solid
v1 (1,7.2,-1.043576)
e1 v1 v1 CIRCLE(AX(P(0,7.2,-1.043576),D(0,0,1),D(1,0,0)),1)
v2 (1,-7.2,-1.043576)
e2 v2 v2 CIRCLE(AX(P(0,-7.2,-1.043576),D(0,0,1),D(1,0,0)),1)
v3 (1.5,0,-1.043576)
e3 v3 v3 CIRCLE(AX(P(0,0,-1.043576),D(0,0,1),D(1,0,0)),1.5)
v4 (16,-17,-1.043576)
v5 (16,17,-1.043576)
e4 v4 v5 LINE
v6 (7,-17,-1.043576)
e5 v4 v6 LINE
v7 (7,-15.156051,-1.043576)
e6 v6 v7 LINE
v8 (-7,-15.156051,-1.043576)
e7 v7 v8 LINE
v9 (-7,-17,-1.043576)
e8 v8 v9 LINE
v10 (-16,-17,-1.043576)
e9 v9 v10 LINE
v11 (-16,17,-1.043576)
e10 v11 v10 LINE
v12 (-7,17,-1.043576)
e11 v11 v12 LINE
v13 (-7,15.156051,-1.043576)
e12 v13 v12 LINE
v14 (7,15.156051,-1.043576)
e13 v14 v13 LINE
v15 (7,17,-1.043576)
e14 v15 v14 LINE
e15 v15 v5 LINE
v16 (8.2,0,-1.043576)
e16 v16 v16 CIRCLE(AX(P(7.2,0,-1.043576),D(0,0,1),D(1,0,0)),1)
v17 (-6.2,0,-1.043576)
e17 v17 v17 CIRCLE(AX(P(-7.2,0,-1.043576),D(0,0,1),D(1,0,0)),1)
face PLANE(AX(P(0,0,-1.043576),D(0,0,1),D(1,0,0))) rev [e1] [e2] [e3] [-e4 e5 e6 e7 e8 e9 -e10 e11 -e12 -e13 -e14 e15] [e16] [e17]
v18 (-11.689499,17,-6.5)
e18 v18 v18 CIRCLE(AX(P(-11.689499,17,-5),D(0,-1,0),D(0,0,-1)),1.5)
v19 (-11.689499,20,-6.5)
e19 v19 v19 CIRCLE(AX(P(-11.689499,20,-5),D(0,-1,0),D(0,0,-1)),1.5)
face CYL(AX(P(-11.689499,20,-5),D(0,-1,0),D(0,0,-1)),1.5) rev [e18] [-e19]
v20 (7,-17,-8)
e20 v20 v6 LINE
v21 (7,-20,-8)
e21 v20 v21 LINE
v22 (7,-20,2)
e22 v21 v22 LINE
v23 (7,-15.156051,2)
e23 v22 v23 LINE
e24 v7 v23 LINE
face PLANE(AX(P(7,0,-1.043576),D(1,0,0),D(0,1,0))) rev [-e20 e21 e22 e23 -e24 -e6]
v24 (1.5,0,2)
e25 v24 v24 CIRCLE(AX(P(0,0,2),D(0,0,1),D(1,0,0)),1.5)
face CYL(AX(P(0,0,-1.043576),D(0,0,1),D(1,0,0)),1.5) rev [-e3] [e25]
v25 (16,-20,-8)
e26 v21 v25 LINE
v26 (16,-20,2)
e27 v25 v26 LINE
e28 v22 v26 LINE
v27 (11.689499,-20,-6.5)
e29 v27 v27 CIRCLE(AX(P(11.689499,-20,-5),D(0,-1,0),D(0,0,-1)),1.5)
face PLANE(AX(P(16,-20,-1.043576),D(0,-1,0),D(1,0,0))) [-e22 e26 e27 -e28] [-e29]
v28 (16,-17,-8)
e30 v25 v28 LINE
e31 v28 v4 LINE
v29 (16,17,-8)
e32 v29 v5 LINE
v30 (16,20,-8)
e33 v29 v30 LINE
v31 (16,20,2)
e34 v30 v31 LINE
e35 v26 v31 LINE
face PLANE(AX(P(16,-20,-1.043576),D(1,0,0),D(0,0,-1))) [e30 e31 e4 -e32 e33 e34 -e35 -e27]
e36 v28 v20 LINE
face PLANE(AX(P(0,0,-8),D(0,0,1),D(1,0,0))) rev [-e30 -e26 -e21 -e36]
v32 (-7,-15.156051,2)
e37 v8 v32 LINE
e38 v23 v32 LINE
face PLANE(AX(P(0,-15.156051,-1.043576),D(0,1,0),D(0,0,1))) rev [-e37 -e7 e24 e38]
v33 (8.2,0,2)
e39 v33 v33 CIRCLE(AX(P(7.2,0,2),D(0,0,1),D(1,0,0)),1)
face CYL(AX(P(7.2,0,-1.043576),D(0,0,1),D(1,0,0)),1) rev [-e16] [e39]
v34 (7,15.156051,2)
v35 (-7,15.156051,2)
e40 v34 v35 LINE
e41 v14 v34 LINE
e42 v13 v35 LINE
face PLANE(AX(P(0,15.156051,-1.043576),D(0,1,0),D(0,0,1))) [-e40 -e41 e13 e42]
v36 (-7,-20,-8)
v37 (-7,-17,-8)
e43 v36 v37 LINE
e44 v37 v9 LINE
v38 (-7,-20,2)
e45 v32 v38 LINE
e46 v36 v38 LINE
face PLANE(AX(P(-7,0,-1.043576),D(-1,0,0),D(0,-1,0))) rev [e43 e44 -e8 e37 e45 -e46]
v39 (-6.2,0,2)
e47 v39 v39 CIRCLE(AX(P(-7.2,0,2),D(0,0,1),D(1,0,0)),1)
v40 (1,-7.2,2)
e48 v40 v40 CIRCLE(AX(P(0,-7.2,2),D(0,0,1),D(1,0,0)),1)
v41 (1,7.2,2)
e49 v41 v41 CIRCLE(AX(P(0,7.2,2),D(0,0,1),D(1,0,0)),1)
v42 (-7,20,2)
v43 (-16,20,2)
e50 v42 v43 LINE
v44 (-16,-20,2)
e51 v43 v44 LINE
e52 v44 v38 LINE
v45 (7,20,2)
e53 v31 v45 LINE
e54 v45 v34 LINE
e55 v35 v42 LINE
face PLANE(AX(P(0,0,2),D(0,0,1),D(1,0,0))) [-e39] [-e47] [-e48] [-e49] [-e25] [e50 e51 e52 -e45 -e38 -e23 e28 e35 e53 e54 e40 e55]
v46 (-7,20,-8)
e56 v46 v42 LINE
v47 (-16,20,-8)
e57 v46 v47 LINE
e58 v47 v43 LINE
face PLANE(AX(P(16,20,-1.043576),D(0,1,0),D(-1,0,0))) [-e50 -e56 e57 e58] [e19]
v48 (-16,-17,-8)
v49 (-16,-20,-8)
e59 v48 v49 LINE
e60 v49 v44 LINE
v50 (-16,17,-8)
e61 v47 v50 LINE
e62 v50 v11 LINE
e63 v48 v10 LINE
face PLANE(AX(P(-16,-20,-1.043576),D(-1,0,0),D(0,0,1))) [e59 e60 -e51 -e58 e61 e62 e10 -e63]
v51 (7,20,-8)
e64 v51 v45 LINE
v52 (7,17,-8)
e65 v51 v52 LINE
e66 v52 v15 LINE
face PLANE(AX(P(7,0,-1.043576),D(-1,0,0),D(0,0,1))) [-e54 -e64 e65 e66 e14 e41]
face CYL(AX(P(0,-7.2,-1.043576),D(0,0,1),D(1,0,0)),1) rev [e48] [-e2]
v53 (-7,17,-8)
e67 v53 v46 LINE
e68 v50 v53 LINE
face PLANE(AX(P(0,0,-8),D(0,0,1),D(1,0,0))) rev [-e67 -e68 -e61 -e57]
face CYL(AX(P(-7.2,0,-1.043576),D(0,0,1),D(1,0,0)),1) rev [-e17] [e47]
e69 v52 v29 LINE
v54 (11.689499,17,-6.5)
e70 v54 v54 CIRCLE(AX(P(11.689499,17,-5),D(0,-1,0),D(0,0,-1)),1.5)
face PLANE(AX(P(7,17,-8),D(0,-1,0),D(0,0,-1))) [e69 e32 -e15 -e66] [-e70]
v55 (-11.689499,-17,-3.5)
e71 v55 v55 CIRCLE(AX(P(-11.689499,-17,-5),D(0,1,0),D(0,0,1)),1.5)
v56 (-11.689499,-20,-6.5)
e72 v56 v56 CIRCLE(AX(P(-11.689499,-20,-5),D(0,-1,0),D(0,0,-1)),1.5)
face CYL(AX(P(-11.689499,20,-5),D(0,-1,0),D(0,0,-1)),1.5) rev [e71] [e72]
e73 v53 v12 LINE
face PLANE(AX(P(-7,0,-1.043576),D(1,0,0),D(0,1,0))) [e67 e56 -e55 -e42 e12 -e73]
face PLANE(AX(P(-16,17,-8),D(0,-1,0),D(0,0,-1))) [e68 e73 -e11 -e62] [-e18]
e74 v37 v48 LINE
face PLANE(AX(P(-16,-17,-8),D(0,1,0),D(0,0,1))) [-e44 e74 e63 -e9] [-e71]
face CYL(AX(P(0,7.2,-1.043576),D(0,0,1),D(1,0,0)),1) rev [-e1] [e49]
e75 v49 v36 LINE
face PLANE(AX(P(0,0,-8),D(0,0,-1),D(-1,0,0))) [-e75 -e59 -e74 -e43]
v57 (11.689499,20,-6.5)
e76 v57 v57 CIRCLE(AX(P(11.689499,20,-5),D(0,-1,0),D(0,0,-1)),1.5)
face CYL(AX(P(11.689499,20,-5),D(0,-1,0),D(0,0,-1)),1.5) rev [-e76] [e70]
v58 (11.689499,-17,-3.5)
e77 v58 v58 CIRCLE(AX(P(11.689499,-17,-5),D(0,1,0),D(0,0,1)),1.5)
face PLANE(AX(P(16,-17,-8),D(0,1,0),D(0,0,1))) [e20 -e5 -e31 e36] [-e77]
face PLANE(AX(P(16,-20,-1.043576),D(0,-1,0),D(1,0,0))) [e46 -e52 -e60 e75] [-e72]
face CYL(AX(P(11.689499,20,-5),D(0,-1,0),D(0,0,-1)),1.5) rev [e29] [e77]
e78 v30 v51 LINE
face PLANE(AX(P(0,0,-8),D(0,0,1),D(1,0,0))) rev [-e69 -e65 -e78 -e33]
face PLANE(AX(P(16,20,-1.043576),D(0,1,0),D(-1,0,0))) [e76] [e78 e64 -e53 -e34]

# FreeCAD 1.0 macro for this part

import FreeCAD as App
import Part
import Sketcher
from FreeCAD import Vector

doc = App.newDocument("Part")
body = doc.addObject("PartDesign::Body", "Body")

# Sketch on XY plane
sketch1 = doc.addObject("Sketcher::SketchObject", "Sketch")
body.addObject(sketch1)
sketch1.AttachmentSupport = (doc.XY_Plane, [""])
sketch1.MapMode = "FlatFace"
sketch1.addGeometry([
    Part.LineSegment(Vector(-16, 20, 0), Vector(-16, -20, 0)),
    Part.LineSegment(Vector(-16, -20, 0), Vector(16, -20, 0)),
    Part.LineSegment(Vector(16, -20, 0), Vector(16, 20, 0)),
    Part.LineSegment(Vector(16, 20, 0), Vector(-16, 20, 0)),
], False)
sketch1.addConstraint([
    Sketcher.Constraint("Coincident", 0, 2, 1, 1),
    Sketcher.Constraint("Coincident", 1, 2, 2, 1),
    Sketcher.Constraint("Coincident", 2, 2, 3, 1),
    Sketcher.Constraint("Coincident", 3, 2, 0, 1),
    Sketcher.Constraint("Vertical", 0),
    Sketcher.Constraint("Horizontal", 1),
    Sketcher.Constraint("Vertical", 2),
    Sketcher.Constraint("Horizontal", 3),
    Sketcher.Constraint("Symmetric", 0, 2, 2, 2, -1, 1),
    Sketcher.Constraint("DistanceX", 1, 1, 1, 2, 32.0),
    Sketcher.Constraint("DistanceY", 0, 2, 0, 1, 40.0),
])
pad1 = doc.addObject("PartDesign::Pad", "Pad")
body.addObject(pad1)
pad1.Profile = sketch1
pad1.Type = "TwoLengths"
pad1.Length = 2
pad1.Length2 = 1.043576

# Sketch on XY plane
sketch2 = doc.addObject("Sketcher::SketchObject", "Sketch001")
body.addObject(sketch2)
sketch2.AttachmentSupport = (doc.XY_Plane, [""])
sketch2.MapMode = "FlatFace"
sketch2.AttachmentOffset = App.Placement(Vector(0, 0, 2), App.Rotation())
sketch2.addGeometry([
    Part.Circle(Vector(0, 0, 0), Vector(0, 0, 1), 1.5),  # 0
    Part.Circle(Vector(0, 7.2, 0), Vector(0, 0, 1), 1),  # 1
    Part.Circle(Vector(7.2, 0, 0), Vector(0, 0, 1), 1),  # 2
    Part.Circle(Vector(0, -7.2, 0), Vector(0, 0, 1), 1),  # 3
    Part.Circle(Vector(-7.2, 0, 0), Vector(0, 0, 1), 1),  # 4
], False)
sketch2.addConstraint([
    Sketcher.Constraint("Coincident", 0, 3, -1, 1),
    Sketcher.Constraint("Equal", 1, 2),
    Sketcher.Constraint("Equal", 2, 3),
    Sketcher.Constraint("Equal", 3, 4),
    Sketcher.Constraint("Symmetric", 1, 3, 3, 3, -1, 1),
    Sketcher.Constraint("Symmetric", 2, 3, 4, 3, -1, 1),
    Sketcher.Constraint("PointOnObject", 1, 3, -2),
    Sketcher.Constraint("PointOnObject", 2, 3, -1),
    Sketcher.Constraint("Diameter", 0, 3.0),
    Sketcher.Constraint("Diameter", 1, 2.0),
    Sketcher.Constraint("DistanceY", -1, 1, 1, 3, 7.2),
    Sketcher.Constraint("DistanceX", -1, 1, 2, 3, 7.2),
])
pocket1 = doc.addObject("PartDesign::Pocket", "Pocket")
body.addObject(pocket1)
pocket1.Profile = sketch2
pocket1.Type = "ThroughAll"
pocket1.Midplane = True

# Sketch on XY plane
sketch3 = doc.addObject("Sketcher::SketchObject", "Sketch002")
body.addObject(sketch3)
sketch3.AttachmentSupport = (doc.XY_Plane, [""])
sketch3.MapMode = "FlatFace"
sketch3.AttachmentOffset = App.Placement(Vector(0, 0, 2), App.Rotation())
sketch3.addGeometry([
    Part.LineSegment(Vector(-7, 20, 0), Vector(-7, 15.156051, 0)),  # 0
    Part.LineSegment(Vector(-7, 15.156051, 0), Vector(7, 15.156051, 0)),  # 1
    Part.LineSegment(Vector(7, 15.156051, 0), Vector(7, 20, 0)),  # 2
    Part.LineSegment(Vector(7, 20, 0), Vector(-7, 20, 0)),  # 3
    Part.LineSegment(Vector(-7, -15.156051, 0), Vector(-7, -20, 0)),  # 4
    Part.LineSegment(Vector(-7, -20, 0), Vector(7, -20, 0)),  # 5
    Part.LineSegment(Vector(7, -20, 0), Vector(7, -15.156051, 0)),  # 6
    Part.LineSegment(Vector(7, -15.156051, 0), Vector(-7, -15.156051, 0)),  # 7
], False)
sketch3.addConstraint([
    Sketcher.Constraint("Coincident", 0, 2, 1, 1),
    Sketcher.Constraint("Coincident", 1, 2, 2, 1),
    Sketcher.Constraint("Coincident", 2, 2, 3, 1),
    Sketcher.Constraint("Coincident", 3, 2, 0, 1),
    Sketcher.Constraint("Coincident", 4, 2, 5, 1),
    Sketcher.Constraint("Coincident", 5, 2, 6, 1),
    Sketcher.Constraint("Coincident", 6, 2, 7, 1),
    Sketcher.Constraint("Coincident", 7, 2, 4, 1),
    Sketcher.Constraint("Vertical", 0),
    Sketcher.Constraint("Horizontal", 1),
    Sketcher.Constraint("Vertical", 2),
    Sketcher.Constraint("Horizontal", 3),
    Sketcher.Constraint("Vertical", 4),
    Sketcher.Constraint("Horizontal", 5),
    Sketcher.Constraint("Vertical", 6),
    Sketcher.Constraint("Horizontal", 7),
    Sketcher.Constraint("Symmetric", 2, 2, 4, 2, -1, 1),
    Sketcher.Constraint("Symmetric", 0, 2, 6, 2, -1, 1),
    Sketcher.Constraint("Vertical", 3, 2, 4, 2),
    Sketcher.Constraint("DistanceX", 1, 1, 1, 2, 14.0),
    Sketcher.Constraint("DistanceY", -1, 1, 2, 2, 20.0),
    Sketcher.Constraint("DistanceY", 0, 2, 0, 1, 4.843949),
])
pocket2 = doc.addObject("PartDesign::Pocket", "Pocket001")
body.addObject(pocket2)
pocket2.Profile = sketch3
pocket2.Type = "ThroughAll"

# Sketch on XY plane
sketch4 = doc.addObject("Sketcher::SketchObject", "Sketch003")
body.addObject(sketch4)
sketch4.AttachmentSupport = (doc.XY_Plane, [""])
sketch4.MapMode = "FlatFace"
sketch4.AttachmentOffset = App.Placement(Vector(0, 0, 2), App.Rotation())
sketch4.addGeometry([
    Part.LineSegment(Vector(7, 20, 0), Vector(7, 17, 0)),  # 0
    Part.LineSegment(Vector(7, 17, 0), Vector(16, 17, 0)),  # 1
    Part.LineSegment(Vector(16, 17, 0), Vector(16, 20, 0)),  # 2
    Part.LineSegment(Vector(16, 20, 0), Vector(7, 20, 0)),  # 3
    Part.LineSegment(Vector(-16, 20, 0), Vector(-16, 17, 0)),  # 4
    Part.LineSegment(Vector(-16, 17, 0), Vector(-7, 17, 0)),  # 5
    Part.LineSegment(Vector(-7, 17, 0), Vector(-7, 20, 0)),  # 6
    Part.LineSegment(Vector(-7, 20, 0), Vector(-16, 20, 0)),  # 7
    Part.LineSegment(Vector(-16, -17, 0), Vector(-16, -20, 0)),  # 8
    Part.LineSegment(Vector(-16, -20, 0), Vector(-7, -20, 0)),  # 9
    Part.LineSegment(Vector(-7, -20, 0), Vector(-7, -17, 0)),  # 10
    Part.LineSegment(Vector(-7, -17, 0), Vector(-16, -17, 0)),  # 11
    Part.LineSegment(Vector(7, -17, 0), Vector(7, -20, 0)),  # 12
    Part.LineSegment(Vector(7, -20, 0), Vector(16, -20, 0)),  # 13
    Part.LineSegment(Vector(16, -20, 0), Vector(16, -17, 0)),  # 14
    Part.LineSegment(Vector(16, -17, 0), Vector(7, -17, 0)),  # 15
], False)
sketch4.addConstraint([
    Sketcher.Constraint("Coincident", 0, 2, 1, 1),
    Sketcher.Constraint("Coincident", 1, 2, 2, 1),
    Sketcher.Constraint("Coincident", 2, 2, 3, 1),
    Sketcher.Constraint("Coincident", 3, 2, 0, 1),
    Sketcher.Constraint("Coincident", 4, 2, 5, 1),
    Sketcher.Constraint("Coincident", 5, 2, 6, 1),
    Sketcher.Constraint("Coincident", 6, 2, 7, 1),
    Sketcher.Constraint("Coincident", 7, 2, 4, 1),
    Sketcher.Constraint("Coincident", 8, 2, 9, 1),
    Sketcher.Constraint("Coincident", 9, 2, 10, 1),
    Sketcher.Constraint("Coincident", 10, 2, 11, 1),
    Sketcher.Constraint("Coincident", 11, 2, 8, 1),
    Sketcher.Constraint("Coincident", 12, 2, 13, 1),
    Sketcher.Constraint("Coincident", 13, 2, 14, 1),
    Sketcher.Constraint("Coincident", 14, 2, 15, 1),
    Sketcher.Constraint("Coincident", 15, 2, 12, 1),
    Sketcher.Constraint("Vertical", 0),
    Sketcher.Constraint("Horizontal", 1),
    Sketcher.Constraint("Vertical", 2),
    Sketcher.Constraint("Horizontal", 3),
    Sketcher.Constraint("Vertical", 4),
    Sketcher.Constraint("Horizontal", 5),
    Sketcher.Constraint("Vertical", 6),
    Sketcher.Constraint("Horizontal", 7),
    Sketcher.Constraint("Vertical", 8),
    Sketcher.Constraint("Horizontal", 9),
    Sketcher.Constraint("Vertical", 10),
    Sketcher.Constraint("Horizontal", 11),
    Sketcher.Constraint("Vertical", 12),
    Sketcher.Constraint("Horizontal", 13),
    Sketcher.Constraint("Vertical", 14),
    Sketcher.Constraint("Horizontal", 15),
    Sketcher.Constraint("Symmetric", 2, 2, 8, 2, -1, 1),
    Sketcher.Constraint("Symmetric", 0, 2, 10, 2, -1, 1),
    Sketcher.Constraint("Symmetric", 6, 2, 12, 2, -1, 1),
    Sketcher.Constraint("Symmetric", 4, 2, 14, 2, -1, 1),
    Sketcher.Constraint("Symmetric", 1, 2, 4, 2, -2),
    Sketcher.Constraint("Symmetric", 3, 2, 6, 2, -2),
    Sketcher.Constraint("DistanceX", 1, 1, 1, 2, 9.0),
    Sketcher.Constraint("DistanceY", 0, 2, 0, 1, 3.0),
    Sketcher.Constraint("DistanceX", -1, 1, 0, 2, 7.0),
    Sketcher.Constraint("DistanceY", -1, 1, 0, 2, 17.0),
])
pad2 = doc.addObject("PartDesign::Pad", "Pad001")
body.addObject(pad2)
pad2.Profile = sketch4
pad2.Length = 10
pad2.Reversed = True

# Sketch on XZ plane
sketch5 = doc.addObject("Sketcher::SketchObject", "Sketch004")
body.addObject(sketch5)
sketch5.AttachmentSupport = (doc.XZ_Plane, [""])
sketch5.MapMode = "FlatFace"
sketch5.AttachmentOffset = App.Placement(Vector(0, 0, 20), App.Rotation())
sketch5.addGeometry([
    Part.Circle(Vector(11.689499, -5, 0), Vector(0, 0, 1), 1.5),
    Part.Circle(Vector(-11.689499, -5, 0), Vector(0, 0, 1), 1.5),
], False)
sketch5.addConstraint([
    Sketcher.Constraint("Equal", 0, 1),
    Sketcher.Constraint("Symmetric", 0, 3, 1, 3, -2),
    Sketcher.Constraint("Diameter", 0, 3.0),
    Sketcher.Constraint("DistanceY", 0, 3, -1, 1, 5.0),
    Sketcher.Constraint("DistanceX", -1, 1, 0, 3, 11.689499),
])
pocket3 = doc.addObject("PartDesign::Pocket", "Pocket002")
body.addObject(pocket3)
pocket3.Profile = sketch5
pocket3.Type = "ThroughAll"

doc.recompute()
